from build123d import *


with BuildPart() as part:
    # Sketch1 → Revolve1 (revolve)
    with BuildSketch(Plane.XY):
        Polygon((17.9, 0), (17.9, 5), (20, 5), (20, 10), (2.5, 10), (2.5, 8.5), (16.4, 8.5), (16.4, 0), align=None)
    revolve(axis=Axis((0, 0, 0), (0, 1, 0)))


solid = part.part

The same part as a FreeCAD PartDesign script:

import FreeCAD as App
import Part
import Sketcher
from FreeCAD import Vector

doc = App.newDocument("Part")
body = doc.addObject("PartDesign::Body", "Body")

# Sketch on XY plane
sketch1 = body.newObject("Sketcher::SketchObject", "Sketch")
sketch1.AttachmentSupport = (doc.getObject("XY_Plane"), [""])
sketch1.MapMode = "FlatFace"
sketch1.addGeometry(Part.LineSegment(Vector(17.9, 0, 0), Vector(17.9, 5, 0)), False)
sketch1.addGeometry(Part.LineSegment(Vector(17.9, 5, 0), Vector(20, 5, 0)), False)
sketch1.addGeometry(Part.LineSegment(Vector(20, 5, 0), Vector(20, 10, 0)), False)
sketch1.addGeometry(Part.LineSegment(Vector(20, 10, 0), Vector(2.5, 10, 0)), False)
sketch1.addGeometry(Part.LineSegment(Vector(2.5, 10, 0), Vector(2.5, 8.5, 0)), False)
sketch1.addGeometry(Part.LineSegment(Vector(2.5, 8.5, 0), Vector(16.4, 8.5, 0)), False)
sketch1.addGeometry(Part.LineSegment(Vector(16.4, 8.5, 0), Vector(16.4, 0, 0)), False)
sketch1.addGeometry(Part.LineSegment(Vector(16.4, 0, 0), Vector(17.9, 0, 0)), False)
sketch1.addConstraint(Sketcher.Constraint("Coincident", 0, 2, 1, 1))
sketch1.addConstraint(Sketcher.Constraint("Coincident", 1, 2, 2, 1))
sketch1.addConstraint(Sketcher.Constraint("Coincident", 2, 2, 3, 1))
sketch1.addConstraint(Sketcher.Constraint("Coincident", 3, 2, 4, 1))
sketch1.addConstraint(Sketcher.Constraint("Coincident", 4, 2, 5, 1))
sketch1.addConstraint(Sketcher.Constraint("Coincident", 5, 2, 6, 1))
sketch1.addConstraint(Sketcher.Constraint("Coincident", 6, 2, 7, 1))
sketch1.addConstraint(Sketcher.Constraint("Coincident", 7, 2, 0, 1))
sketch1.addConstraint(Sketcher.Constraint("Vertical", 0))
sketch1.addConstraint(Sketcher.Constraint("Horizontal", 1))
sketch1.addConstraint(Sketcher.Constraint("Vertical", 2))
sketch1.addConstraint(Sketcher.Constraint("Horizontal", 3))
sketch1.addConstraint(Sketcher.Constraint("Vertical", 4))
sketch1.addConstraint(Sketcher.Constraint("Horizontal", 5))
sketch1.addConstraint(Sketcher.Constraint("Vertical", 6))
sketch1.addConstraint(Sketcher.Constraint("Horizontal", 7))
sketch1.addConstraint(Sketcher.Constraint("PointOnObject", 6, 2, -1))
sketch1.addConstraint(Sketcher.Constraint("Equal", 0, 2))
sketch1.addConstraint(Sketcher.Constraint("Equal", 7, 4))
sketch1.addConstraint(Sketcher.Constraint("DistanceY", 0, 1, 0, 2, 5.0))
sketch1.addConstraint(Sketcher.Constraint("DistanceX", 1, 1, 1, 2, 2.1))
sketch1.addConstraint(Sketcher.Constraint("DistanceX", 3, 2, 3, 1, 17.5))
sketch1.addConstraint(Sketcher.Constraint("DistanceX", 5, 1, 5, 2, 13.9))
sketch1.addConstraint(Sketcher.Constraint("DistanceX", -1, 1, 1, 2, 20.0))
revolution = body.newObject("PartDesign::Revolution", "Revolution")
revolution.Profile = sketch1
revolution.ReferenceAxis = (sketch1, ["V_Axis"])
revolution.Angle = 360

doc.recompute()
